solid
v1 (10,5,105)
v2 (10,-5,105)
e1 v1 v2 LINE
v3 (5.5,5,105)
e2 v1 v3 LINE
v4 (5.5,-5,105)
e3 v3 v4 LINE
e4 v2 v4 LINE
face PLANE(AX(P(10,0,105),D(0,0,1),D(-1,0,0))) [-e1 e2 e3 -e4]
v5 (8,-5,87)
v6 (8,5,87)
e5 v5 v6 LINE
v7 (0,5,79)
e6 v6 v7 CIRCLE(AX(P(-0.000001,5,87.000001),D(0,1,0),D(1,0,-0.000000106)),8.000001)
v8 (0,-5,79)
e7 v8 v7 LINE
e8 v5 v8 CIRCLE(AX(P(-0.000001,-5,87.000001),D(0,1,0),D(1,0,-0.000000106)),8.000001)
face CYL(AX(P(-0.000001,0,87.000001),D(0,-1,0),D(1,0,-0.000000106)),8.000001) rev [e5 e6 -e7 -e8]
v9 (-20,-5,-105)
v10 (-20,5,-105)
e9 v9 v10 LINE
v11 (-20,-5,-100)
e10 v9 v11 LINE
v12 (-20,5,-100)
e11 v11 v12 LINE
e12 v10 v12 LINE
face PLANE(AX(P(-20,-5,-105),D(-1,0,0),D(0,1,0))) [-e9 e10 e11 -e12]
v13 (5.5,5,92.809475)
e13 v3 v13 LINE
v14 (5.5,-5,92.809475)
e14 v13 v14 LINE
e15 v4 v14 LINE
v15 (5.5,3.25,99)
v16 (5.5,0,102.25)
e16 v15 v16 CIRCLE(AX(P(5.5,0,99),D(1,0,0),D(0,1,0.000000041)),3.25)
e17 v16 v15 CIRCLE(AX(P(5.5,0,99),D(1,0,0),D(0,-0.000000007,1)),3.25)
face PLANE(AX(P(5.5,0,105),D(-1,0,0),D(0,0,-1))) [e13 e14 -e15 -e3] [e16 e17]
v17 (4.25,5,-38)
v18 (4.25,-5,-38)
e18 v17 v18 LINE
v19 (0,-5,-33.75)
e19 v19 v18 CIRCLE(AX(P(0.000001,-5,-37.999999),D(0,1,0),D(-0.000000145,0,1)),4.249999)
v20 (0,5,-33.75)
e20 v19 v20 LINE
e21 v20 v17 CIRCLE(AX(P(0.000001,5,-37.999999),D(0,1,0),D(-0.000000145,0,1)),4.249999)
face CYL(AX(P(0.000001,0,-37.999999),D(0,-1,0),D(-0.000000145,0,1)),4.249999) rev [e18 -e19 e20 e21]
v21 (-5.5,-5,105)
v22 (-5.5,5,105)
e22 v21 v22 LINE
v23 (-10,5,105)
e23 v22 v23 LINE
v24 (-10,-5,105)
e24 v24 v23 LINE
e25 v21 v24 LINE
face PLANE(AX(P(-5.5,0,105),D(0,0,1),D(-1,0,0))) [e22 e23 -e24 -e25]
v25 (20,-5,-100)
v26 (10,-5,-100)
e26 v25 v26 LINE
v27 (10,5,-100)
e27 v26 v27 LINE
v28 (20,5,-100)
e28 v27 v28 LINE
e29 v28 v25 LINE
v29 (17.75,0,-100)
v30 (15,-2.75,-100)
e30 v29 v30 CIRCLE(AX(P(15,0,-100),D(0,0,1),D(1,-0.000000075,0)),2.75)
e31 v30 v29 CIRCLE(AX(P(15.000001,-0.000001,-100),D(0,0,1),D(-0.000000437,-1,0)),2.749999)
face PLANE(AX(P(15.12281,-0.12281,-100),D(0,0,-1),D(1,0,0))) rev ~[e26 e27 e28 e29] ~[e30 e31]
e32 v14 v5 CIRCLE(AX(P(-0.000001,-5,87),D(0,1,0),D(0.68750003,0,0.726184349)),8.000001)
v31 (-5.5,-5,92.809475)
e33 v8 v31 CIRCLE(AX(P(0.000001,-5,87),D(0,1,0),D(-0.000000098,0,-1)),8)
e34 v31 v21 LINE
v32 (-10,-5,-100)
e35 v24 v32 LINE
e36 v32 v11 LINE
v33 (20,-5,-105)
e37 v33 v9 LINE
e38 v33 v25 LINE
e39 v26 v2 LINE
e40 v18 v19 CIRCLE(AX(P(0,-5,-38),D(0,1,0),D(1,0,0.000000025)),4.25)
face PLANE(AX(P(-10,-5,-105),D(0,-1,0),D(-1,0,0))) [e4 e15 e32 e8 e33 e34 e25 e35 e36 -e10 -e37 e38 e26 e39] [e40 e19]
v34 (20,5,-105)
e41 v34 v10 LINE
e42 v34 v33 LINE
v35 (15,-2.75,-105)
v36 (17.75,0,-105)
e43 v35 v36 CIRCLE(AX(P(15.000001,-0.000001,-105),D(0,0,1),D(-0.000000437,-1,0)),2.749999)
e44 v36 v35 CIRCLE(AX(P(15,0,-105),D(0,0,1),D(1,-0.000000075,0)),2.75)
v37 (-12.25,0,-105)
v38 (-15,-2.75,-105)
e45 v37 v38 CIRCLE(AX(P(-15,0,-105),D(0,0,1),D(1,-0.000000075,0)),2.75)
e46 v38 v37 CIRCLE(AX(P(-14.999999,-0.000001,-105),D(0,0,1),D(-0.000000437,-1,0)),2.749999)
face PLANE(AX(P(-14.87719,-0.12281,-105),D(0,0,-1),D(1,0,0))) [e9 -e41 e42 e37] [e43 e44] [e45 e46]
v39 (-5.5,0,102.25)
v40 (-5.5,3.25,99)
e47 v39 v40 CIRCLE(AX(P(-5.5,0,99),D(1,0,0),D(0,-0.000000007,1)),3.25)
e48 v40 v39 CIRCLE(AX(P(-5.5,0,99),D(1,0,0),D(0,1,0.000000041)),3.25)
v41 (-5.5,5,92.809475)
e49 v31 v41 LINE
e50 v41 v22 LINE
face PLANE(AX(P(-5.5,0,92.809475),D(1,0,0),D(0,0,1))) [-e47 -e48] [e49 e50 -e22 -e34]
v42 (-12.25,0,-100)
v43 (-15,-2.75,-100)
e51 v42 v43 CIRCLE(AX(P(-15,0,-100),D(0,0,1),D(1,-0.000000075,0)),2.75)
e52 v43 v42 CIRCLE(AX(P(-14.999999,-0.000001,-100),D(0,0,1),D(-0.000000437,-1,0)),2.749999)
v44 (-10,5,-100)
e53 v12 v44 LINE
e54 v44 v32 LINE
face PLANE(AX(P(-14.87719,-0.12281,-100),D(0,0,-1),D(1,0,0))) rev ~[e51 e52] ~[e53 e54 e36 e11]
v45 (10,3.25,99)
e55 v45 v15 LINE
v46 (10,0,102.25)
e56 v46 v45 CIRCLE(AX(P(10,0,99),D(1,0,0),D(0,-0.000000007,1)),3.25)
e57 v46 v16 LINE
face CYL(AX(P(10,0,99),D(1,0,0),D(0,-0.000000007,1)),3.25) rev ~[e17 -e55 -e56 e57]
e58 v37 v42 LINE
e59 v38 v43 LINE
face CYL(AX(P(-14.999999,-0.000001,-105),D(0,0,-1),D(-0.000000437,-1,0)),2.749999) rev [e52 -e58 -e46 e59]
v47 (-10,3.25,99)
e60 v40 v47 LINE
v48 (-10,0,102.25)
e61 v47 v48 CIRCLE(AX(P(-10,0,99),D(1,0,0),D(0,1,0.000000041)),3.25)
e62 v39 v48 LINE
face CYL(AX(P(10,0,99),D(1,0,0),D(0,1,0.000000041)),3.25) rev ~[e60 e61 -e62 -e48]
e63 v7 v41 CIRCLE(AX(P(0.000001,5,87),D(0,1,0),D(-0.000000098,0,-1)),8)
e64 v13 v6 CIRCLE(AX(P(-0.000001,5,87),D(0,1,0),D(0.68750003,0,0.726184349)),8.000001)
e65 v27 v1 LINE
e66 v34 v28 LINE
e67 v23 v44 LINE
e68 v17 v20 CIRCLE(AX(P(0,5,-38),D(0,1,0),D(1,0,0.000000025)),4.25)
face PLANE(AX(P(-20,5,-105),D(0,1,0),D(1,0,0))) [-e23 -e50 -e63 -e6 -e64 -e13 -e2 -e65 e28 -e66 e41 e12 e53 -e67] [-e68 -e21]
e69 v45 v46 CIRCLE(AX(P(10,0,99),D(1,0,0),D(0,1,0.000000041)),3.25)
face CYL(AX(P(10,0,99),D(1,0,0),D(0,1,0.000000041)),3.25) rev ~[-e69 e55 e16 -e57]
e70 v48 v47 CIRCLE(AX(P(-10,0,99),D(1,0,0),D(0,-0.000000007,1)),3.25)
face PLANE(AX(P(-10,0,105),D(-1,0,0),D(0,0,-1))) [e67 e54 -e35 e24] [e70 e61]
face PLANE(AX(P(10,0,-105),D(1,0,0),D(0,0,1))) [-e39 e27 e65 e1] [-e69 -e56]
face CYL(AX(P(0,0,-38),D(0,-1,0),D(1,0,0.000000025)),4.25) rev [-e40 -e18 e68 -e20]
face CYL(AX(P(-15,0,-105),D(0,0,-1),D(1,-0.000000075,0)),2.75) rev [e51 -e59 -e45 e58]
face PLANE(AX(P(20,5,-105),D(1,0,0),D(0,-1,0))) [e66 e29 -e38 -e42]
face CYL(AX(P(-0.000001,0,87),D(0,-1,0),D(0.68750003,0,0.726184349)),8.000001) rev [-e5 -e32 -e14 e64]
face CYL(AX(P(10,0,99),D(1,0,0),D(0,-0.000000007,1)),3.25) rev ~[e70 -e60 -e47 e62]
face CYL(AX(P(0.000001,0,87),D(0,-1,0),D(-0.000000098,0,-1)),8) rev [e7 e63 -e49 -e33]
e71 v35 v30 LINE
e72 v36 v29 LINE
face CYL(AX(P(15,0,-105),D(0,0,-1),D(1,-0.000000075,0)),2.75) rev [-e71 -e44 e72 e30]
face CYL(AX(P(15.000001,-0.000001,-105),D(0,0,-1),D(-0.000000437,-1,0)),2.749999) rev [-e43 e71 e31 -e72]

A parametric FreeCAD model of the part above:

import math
import FreeCAD as App
import Part
import Sketcher
from FreeCAD import Vector
Q = App.Units.Quantity


def add_polygon(sketch, points):
    """Adds a closed chain of lines whose ends are joined by coincident constraints."""
    first, n = sketch.GeometryCount, len(points)
    for a, b in zip(points, points[1:] + points[:1]):
        sketch.addGeometry(Part.LineSegment(App.Vector(*a, 0), App.Vector(*b, 0)), False)
    for i in range(n):
        sketch.addConstraint(Sketcher.Constraint("Coincident", first + i, 2, first + (i + 1) % n, 1))

doc = App.newDocument("Part")
body = doc.addObject("PartDesign::Body", "Body")

sketch1 = body.newObject("Sketcher::SketchObject", "Sketch")
sketch1.AttachmentSupport = (doc.getObject("XZ_Plane"), [""])
sketch1.MapMode = "FlatFace"
sketch1.addGeometry(Part.LineSegment(Vector(-10, 105, 0), Vector(-10, -105, 0)), False)
sketch1.addGeometry(Part.LineSegment(Vector(-10, -105, 0), Vector(10, -105, 0)), False)
sketch1.addGeometry(Part.LineSegment(Vector(10, -105, 0), Vector(10, 105, 0)), False)
sketch1.addGeometry(Part.LineSegment(Vector(10, 105, 0), Vector(5.5, 105, 0)), False)
sketch1.addGeometry(Part.LineSegment(Vector(5.5, 105, 0), Vector(5.5, 92.8, 0)), False)
sketch1.addGeometry(Part.ArcOfCircle(Part.Circle(Vector(0, 87, 0), Vector(0, 0, 1), 8), math.radians(0), math.radians(47)), False)
sketch1.addGeometry(Part.ArcOfCircle(Part.Circle(Vector(0, 87, 0), Vector(0, 0, 1), 8), math.radians(-90), math.radians(0)), False)
sketch1.addGeometry(Part.ArcOfCircle(Part.Circle(Vector(0, 87, 0), Vector(0, 0, 1), 8), math.radians(133), math.radians(270)), False)
sketch1.addGeometry(Part.LineSegment(Vector(-5.5, 92.8, 0), Vector(-5.5, 105, 0)), False)
sketch1.addGeometry(Part.LineSegment(Vector(-5.5, 105, 0), Vector(-10, 105, 0)), False)
sketch1.addGeometry(Part.ArcOfCircle(Part.Circle(Vector(0, -38, 0), Vector(0, 0, 1), 4.2), math.radians(0), math.radians(90)), False)
sketch1.addGeometry(Part.ArcOfCircle(Part.Circle(Vector(0, -38, 0), Vector(0, 0, 1), 4.3), math.radians(90), math.radians(360)), False)
sketch1.addConstraint(Sketcher.Constraint("Coincident", 0, 2, 1, 1))
sketch1.addConstraint(Sketcher.Constraint("Coincident", 1, 2, 2, 1))
sketch1.addConstraint(Sketcher.Constraint("Coincident", 2, 2, 3, 1))
sketch1.addConstraint(Sketcher.Constraint("Coincident", 3, 2, 4, 1))
sketch1.addConstraint(Sketcher.Constraint("Coincident", 4, 2, 5, 2))
sketch1.addConstraint(Sketcher.Constraint("Tangent", 5, 1, 6, 2))
sketch1.addConstraint(Sketcher.Constraint("Tangent", 6, 1, 7, 2))
sketch1.addConstraint(Sketcher.Constraint("Coincident", 7, 1, 8, 1))
sketch1.addConstraint(Sketcher.Constraint("Coincident", 8, 2, 9, 1))
sketch1.addConstraint(Sketcher.Constraint("Coincident", 9, 2, 0, 1))
sketch1.addConstraint(Sketcher.Constraint("Tangent", 10, 1, 11, 2))
sketch1.addConstraint(Sketcher.Constraint("Coincident", 11, 1, 10, 2))
sketch1.addConstraint(Sketcher.Constraint("Vertical", 0))
sketch1.addConstraint(Sketcher.Constraint("Horizontal", 1))
sketch1.addConstraint(Sketcher.Constraint("Vertical", 2))
sketch1.addConstraint(Sketcher.Constraint("Horizontal", 3))
sketch1.addConstraint(Sketcher.Constraint("Vertical", 4))
sketch1.addConstraint(Sketcher.Constraint("Vertical", 8))
sketch1.addConstraint(Sketcher.Constraint("Horizontal", 9))
sketch1.addConstraint(Sketcher.Constraint("Coincident", 7, 3, 5, 3))
sketch1.addConstraint(Sketcher.Constraint("Symmetric", 0, 2, 2, 2, -1, 1))
sketch1.addConstraint(Sketcher.Constraint("Symmetric", 4, 2, 7, 1, -2))
sketch1.addConstraint(Sketcher.Constraint("PointOnObject", 10, 3, -2))
sketch1.addConstraint(Sketcher.Constraint("PointOnObject", 6, 1, -2))
sketch1.addConstraint(Sketcher.Constraint("PointOnObject", 11, 1, -2))
sketch1.addConstraint(Sketcher.Constraint("Horizontal", 7, 3, 5, 1))
sketch1.addConstraint(Sketcher.Constraint("Horizontal", 3, 2, 8, 2))
sketch1.addConstraint(Sketcher.Constraint("Horizontal", 11, 3, 10, 1))
sketch1.addConstraint(Sketcher.Constraint("Radius", 5, Q("8.000001 mm")))
sketch1.addConstraint(Sketcher.Constraint("DistanceX", 1, 1, 1, 2, Q("20 mm")))
sketch1.addConstraint(Sketcher.Constraint("DistanceY", 0, 2, 0, 1, Q("210 mm")))
sketch1.addConstraint(Sketcher.Constraint("Radius", 10, Q("4.249999 mm")))
sketch1.addConstraint(Sketcher.Constraint("DistanceX", 3, 2, 3, 1, Q("4.5 mm")))
sketch1.addConstraint(Sketcher.Constraint("DistanceY", -1, 1, 5, 3, Q("87 mm")))
sketch1.addConstraint(Sketcher.Constraint("DistanceY", 10, 3, -1, 1, Q("37.999999 mm")))
pad1 = body.newObject("PartDesign::Pad", "Pad")
pad1.Profile = sketch1
pad1.Length = 10
pad1.Midplane = True

sketch2 = body.newObject("Sketcher::SketchObject", "Sketch001")
sketch2.AttachmentSupport = (doc.getObject("YZ_Plane"), [""])
sketch2.MapMode = "FlatFace"
sketch2.AttachmentOffset = App.Placement(Vector(0, 0, 10), App.Rotation())
sketch2.addGeometry(Part.ArcOfCircle(Part.Circle(Vector(0, 99, 0), Vector(0, 0, 1), 3.2), math.radians(90), math.radians(360)), False)
sketch2.addGeometry(Part.ArcOfCircle(Part.Circle(Vector(0, 99, 0), Vector(0, 0, 1), 3.3), math.radians(0), math.radians(90)), False)
sketch2.addConstraint(Sketcher.Constraint("Tangent", 0, 1, 1, 2))
sketch2.addConstraint(Sketcher.Constraint("Coincident", 1, 1, 0, 2))
sketch2.addConstraint(Sketcher.Constraint("PointOnObject", 0, 3, -2))
sketch2.addConstraint(Sketcher.Constraint("PointOnObject", 0, 1, -2))
sketch2.addConstraint(Sketcher.Constraint("Horizontal", 0, 3, 1, 1))
sketch2.addConstraint(Sketcher.Constraint("Radius", 0, Q("3.25 mm")))
sketch2.addConstraint(Sketcher.Constraint("DistanceY", -1, 1, 0, 3, Q("99 mm")))
pocket1 = body.newObject("PartDesign::Pocket", "Pocket")
pocket1.Profile = sketch2
pocket1.Length = 25

sketch3 = body.newObject("Sketcher::SketchObject", "Sketch002")
sketch3.AttachmentSupport = (doc.getObject("XY_Plane"), [""])
sketch3.MapMode = "FlatFace"
sketch3.AttachmentOffset = App.Placement(Vector(0, 0, -105), App.Rotation())
add_polygon(sketch3, [(-10, 5), (-10, -5), (-20, -5), (-20, 5)])
sketch3.addGeometry(Part.ArcOfCircle(Part.Circle(Vector(-15, 0, 0), Vector(0, 0, 1), 2.7), math.radians(-90), math.radians(0)), False)
sketch3.addGeometry(Part.ArcOfCircle(Part.Circle(Vector(-15, 0, 0), Vector(0, 0, 1), 2.8), math.radians(0), math.radians(270)), False)
add_polygon(sketch3, [(10, -5), (10, 5), (20, 5), (20, -5)])
sketch3.addGeometry(Part.ArcOfCircle(Part.Circle(Vector(15, 0, 0), Vector(0, 0, 1), 2.7), math.radians(-90), math.radians(0)), False)
sketch3.addGeometry(Part.ArcOfCircle(Part.Circle(Vector(15, 0, 0), Vector(0, 0, 1), 2.8), math.radians(0), math.radians(270)), False)
sketch3.addConstraint(Sketcher.Constraint("Tangent", 4, 1, 5, 2))
sketch3.addConstraint(Sketcher.Constraint("Coincident", 5, 1, 4, 2))
sketch3.addConstraint(Sketcher.Constraint("Tangent", 10, 1, 11, 2))
sketch3.addConstraint(Sketcher.Constraint("Coincident", 11, 1, 10, 2))
sketch3.addConstraint(Sketcher.Constraint("Vertical", 0))
sketch3.addConstraint(Sketcher.Constraint("Horizontal", 1))
sketch3.addConstraint(Sketcher.Constraint("Vertical", 2))
sketch3.addConstraint(Sketcher.Constraint("Horizontal", 3))
sketch3.addConstraint(Sketcher.Constraint("Vertical", 6))
sketch3.addConstraint(Sketcher.Constraint("Horizontal", 7))
sketch3.addConstraint(Sketcher.Constraint("Vertical", 8))
sketch3.addConstraint(Sketcher.Constraint("Horizontal", 9))
sketch3.addConstraint(Sketcher.Constraint("Equal", 5, 10))
sketch3.addConstraint(Sketcher.Constraint("Symmetric", 4, 3, 10, 3, -1, 1))
sketch3.addConstraint(Sketcher.Constraint("Symmetric", 0, 2, 6, 2, -1, 1))
sketch3.addConstraint(Sketcher.Constraint("Symmetric", 2, 2, 8, 2, -1, 1))
sketch3.addConstraint(Sketcher.Constraint("Symmetric", 4, 1, 10, 1, -2))
sketch3.addConstraint(Sketcher.Constraint("PointOnObject", 5, 1, -1))
sketch3.addConstraint(Sketcher.Constraint("PointOnObject", 11, 1, -1))
sketch3.addConstraint(Sketcher.Constraint("Horizontal", 3, 2, 6, 2))
sketch3.addConstraint(Sketcher.Constraint("Vertical", 5, 3, 4, 1))
sketch3.addConstraint(Sketcher.Constraint("Equal", 9, 0))
sketch3.addConstraint(Sketcher.Constraint("DistanceX", 1, 2, 1, 1, Q("10 mm")))
sketch3.addConstraint(Sketcher.Constraint("Radius", 4, Q("2.749999 mm")))
sketch3.addConstraint(Sketcher.Constraint("DistanceX", 4, 3, -1, 1, Q("14.999999 mm")))
sketch3.addConstraint(Sketcher.Constraint("DistanceX", 0, 2, -1, 1, Q("10 mm")))
pad2 = body.newObject("PartDesign::Pad", "Pad001")
pad2.Profile = sketch3
pad2.Length = 5

doc.recompute()
